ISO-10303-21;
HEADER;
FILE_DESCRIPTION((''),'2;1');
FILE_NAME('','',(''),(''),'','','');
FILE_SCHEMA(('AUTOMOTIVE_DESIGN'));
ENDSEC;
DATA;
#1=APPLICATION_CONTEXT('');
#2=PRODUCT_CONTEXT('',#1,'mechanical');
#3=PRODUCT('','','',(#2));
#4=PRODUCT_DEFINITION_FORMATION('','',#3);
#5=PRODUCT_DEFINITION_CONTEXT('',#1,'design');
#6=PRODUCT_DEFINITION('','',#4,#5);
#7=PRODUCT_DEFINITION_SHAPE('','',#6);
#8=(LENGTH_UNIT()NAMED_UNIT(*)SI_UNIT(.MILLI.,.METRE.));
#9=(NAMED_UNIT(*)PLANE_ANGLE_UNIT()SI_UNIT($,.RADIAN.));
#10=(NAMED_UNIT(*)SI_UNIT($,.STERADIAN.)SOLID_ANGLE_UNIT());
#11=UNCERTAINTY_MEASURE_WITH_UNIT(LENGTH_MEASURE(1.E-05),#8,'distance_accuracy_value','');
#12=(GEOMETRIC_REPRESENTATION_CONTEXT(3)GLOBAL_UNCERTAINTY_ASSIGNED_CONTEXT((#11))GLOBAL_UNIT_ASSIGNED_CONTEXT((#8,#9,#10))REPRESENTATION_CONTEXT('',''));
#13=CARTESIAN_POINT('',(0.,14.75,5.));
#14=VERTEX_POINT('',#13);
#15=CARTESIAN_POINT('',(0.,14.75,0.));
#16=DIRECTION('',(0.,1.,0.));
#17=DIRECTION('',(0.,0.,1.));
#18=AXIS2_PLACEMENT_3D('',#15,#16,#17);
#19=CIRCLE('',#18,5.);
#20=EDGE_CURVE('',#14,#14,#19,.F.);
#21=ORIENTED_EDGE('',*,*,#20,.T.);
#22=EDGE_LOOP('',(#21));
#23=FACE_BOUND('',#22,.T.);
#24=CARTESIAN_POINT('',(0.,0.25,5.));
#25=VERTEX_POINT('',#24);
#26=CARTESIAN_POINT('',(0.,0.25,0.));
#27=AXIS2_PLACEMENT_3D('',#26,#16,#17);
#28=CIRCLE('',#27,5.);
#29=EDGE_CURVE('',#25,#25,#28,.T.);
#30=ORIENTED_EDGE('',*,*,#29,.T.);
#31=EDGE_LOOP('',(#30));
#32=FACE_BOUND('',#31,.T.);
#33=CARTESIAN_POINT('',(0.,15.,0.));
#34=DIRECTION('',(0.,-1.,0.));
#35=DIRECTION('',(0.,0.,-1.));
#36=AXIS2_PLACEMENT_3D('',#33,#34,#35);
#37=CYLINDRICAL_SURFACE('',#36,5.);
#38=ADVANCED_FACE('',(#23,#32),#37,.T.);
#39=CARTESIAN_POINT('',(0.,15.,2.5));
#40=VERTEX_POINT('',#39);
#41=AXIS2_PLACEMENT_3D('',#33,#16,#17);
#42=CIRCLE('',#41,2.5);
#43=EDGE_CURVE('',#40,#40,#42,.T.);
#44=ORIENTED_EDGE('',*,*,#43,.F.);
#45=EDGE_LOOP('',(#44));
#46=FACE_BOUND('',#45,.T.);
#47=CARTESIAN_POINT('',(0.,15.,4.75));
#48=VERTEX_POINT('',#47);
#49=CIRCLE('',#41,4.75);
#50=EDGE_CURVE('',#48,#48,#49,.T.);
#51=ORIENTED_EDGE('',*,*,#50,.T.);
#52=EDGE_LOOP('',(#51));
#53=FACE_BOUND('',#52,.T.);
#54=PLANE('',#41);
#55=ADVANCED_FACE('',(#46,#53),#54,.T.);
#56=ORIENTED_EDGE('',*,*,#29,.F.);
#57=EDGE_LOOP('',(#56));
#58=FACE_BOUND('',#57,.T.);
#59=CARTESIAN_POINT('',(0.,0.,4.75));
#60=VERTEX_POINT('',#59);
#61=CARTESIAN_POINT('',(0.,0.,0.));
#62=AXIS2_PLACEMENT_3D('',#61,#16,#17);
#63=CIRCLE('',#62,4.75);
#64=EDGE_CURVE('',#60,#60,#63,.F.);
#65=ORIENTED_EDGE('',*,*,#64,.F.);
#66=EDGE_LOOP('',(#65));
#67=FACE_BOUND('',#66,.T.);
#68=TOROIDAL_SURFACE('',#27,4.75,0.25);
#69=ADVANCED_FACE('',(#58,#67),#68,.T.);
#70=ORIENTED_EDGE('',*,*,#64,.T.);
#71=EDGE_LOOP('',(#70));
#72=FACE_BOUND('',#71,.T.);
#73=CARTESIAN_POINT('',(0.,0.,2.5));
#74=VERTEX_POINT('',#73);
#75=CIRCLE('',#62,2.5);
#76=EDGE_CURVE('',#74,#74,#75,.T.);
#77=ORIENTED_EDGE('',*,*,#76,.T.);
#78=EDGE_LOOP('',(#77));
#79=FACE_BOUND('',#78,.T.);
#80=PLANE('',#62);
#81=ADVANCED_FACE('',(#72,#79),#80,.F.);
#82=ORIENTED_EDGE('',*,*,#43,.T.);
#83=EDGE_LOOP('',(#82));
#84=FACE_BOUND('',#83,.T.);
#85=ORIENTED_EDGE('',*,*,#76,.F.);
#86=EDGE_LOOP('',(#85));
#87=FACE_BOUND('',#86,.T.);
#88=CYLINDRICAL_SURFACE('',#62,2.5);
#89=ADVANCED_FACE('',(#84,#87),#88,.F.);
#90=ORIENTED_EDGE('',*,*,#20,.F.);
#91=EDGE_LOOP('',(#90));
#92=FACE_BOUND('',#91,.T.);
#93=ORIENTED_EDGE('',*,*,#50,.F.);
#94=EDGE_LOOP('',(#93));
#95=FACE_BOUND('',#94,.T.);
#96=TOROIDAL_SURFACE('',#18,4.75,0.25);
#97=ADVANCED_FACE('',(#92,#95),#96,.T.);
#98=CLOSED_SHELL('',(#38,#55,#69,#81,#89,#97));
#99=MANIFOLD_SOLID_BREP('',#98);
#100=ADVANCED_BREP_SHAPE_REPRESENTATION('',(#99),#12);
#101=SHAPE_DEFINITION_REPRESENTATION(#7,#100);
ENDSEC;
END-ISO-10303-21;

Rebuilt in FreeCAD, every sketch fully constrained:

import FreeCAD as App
import Part
import Sketcher

V = App.Vector


def edges_at(feature, points):
    """Names of the edges that pass closest to the given points."""
    edges = feature.Shape.Edges
    near = lambda p: min(range(len(edges)), key=lambda i: edges[i].distToShape(Part.Vertex(*p))[0])
    return sorted({f"Edge{near(p) + 1}" for p in points})

doc = App.newDocument("Part")
body = doc.addObject("PartDesign::Body", "Body")

sketch1 = body.newObject("Sketcher::SketchObject", "Sketch")
sketch1.AttachmentSupport = (doc.getObject("XZ_Plane"), [""])
sketch1.MapMode = "FlatFace"
sketch1.addGeometry(Part.Circle(V(0, 0, 0), V(0, 0, 1), 5), False)
sketch1.addConstraint([
    Sketcher.Constraint("Coincident", 0, 3, -1, 1),
    Sketcher.Constraint("Diameter", 0, 10.0),
])
pad1 = body.newObject("PartDesign::Pad", "Pad")
pad1.Profile = sketch1
pad1.Length = 15
pad1.Reversed = True

sketch2 = body.newObject("Sketcher::SketchObject", "Sketch001")
sketch2.AttachmentSupport = (doc.getObject("XZ_Plane"), [""])
sketch2.MapMode = "FlatFace"
sketch2.AttachmentOffset = App.Placement(V(0, 0, -15), App.Rotation())
sketch2.addGeometry(Part.Circle(V(0, 0, 0), V(0, 0, 1), 2.5), False)
sketch2.addConstraint([
    Sketcher.Constraint("Coincident", 0, 3, -1, 1),
    Sketcher.Constraint("Diameter", 0, 5.0),
])
pocket1 = body.newObject("PartDesign::Pocket", "Pocket")
pocket1.Profile = sketch2
pocket1.Length = 15
pocket1.Reversed = True
doc.recompute()

fillet = body.newObject("PartDesign::Fillet", "Fillet")
fillet.Base = (pocket1, edges_at(pocket1, [(-5, 0, 0), (-5, 15, 0)]))
fillet.Radius = 0.25

doc.recompute()
